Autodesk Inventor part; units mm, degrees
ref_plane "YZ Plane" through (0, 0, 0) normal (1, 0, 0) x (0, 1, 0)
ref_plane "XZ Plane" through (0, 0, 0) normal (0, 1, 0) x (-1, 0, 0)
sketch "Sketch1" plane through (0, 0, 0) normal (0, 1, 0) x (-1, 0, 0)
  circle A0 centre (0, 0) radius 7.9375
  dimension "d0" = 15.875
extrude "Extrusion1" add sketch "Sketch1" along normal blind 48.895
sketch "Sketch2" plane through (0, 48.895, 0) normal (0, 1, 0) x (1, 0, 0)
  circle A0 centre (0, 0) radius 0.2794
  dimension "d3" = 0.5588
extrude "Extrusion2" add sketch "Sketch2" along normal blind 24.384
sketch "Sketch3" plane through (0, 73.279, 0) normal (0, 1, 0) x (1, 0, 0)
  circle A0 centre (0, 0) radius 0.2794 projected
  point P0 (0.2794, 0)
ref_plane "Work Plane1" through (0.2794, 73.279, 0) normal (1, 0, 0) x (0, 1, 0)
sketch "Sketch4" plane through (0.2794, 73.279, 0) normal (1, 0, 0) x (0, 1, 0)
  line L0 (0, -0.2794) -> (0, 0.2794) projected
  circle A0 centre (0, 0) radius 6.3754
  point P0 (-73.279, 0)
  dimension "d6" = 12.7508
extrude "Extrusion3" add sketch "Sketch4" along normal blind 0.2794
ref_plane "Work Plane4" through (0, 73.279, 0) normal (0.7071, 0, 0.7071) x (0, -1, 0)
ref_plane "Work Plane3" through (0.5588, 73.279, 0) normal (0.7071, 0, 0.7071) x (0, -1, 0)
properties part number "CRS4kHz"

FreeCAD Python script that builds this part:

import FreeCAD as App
import Part
import Sketcher

V = App.Vector
Q = App.Units.Quantity

doc = App.newDocument("Part")
body = doc.addObject("PartDesign::Body", "Body")
body.AllowCompound = True

sketch1 = body.newObject("Sketcher::SketchObject", "Sketch")
sketch1.AttachmentSupport = (doc.getObject("XZ_Plane"), [""])
sketch1.MapMode = "FlatFace"
sketch1.addGeometry(Part.Circle(V(0, 0, 0), V(0, 0, 1), 7.9375), False)
sketch1.addConstraint([
    Sketcher.Constraint("Coincident", 0, 3, -1, 1),
    Sketcher.Constraint("Diameter", 0, Q("0.625 in")),
])
pad1 = body.newObject("PartDesign::Pad", "Pad")
pad1.Profile = sketch1
pad1.Length = Q("1.925 in")
pad1.Reversed = True

sketch2 = body.newObject("Sketcher::SketchObject", "Sketch001")
sketch2.AttachmentSupport = (doc.getObject("XZ_Plane"), [""])
sketch2.MapMode = "FlatFace"
sketch2.AttachmentOffset = App.Placement(V(0, 0, -1.925 * 25.4), App.Rotation())
sketch2.addGeometry(Part.Circle(V(0, 0, 0), V(0, 0, 1), 0.2794), False)
sketch2.addConstraint([
    Sketcher.Constraint("Coincident", 0, 3, -1, 1),
    Sketcher.Constraint("Diameter", 0, Q("0.022 in")),
])
pad2 = body.newObject("PartDesign::Pad", "Pad001")
pad2.Profile = sketch2
pad2.Length = Q("0.96 in")
pad2.Reversed = True

sketch3 = body.newObject("Sketcher::SketchObject", "Sketch002")
sketch3.AttachmentSupport = (doc.getObject("YZ_Plane"), [""])
sketch3.MapMode = "FlatFace"
sketch3.AttachmentOffset = App.Placement(V(0, 0, 0.011 * 25.4), App.Rotation())
sketch3.addGeometry(Part.Circle(V(73.279, 0, 0), V(0, 0, 1), 6.3754), False)
sketch3.addConstraint([
    Sketcher.Constraint("PointOnObject", 0, 3, -1),
    Sketcher.Constraint("Diameter", 0, Q("0.502 in")),
    Sketcher.Constraint("DistanceX", -1, 1, 0, 3, Q("2.885 in")),
])
pad3 = body.newObject("PartDesign::Pad", "Pad002")
pad3.Profile = sketch3
pad3.Length = Q("0.011 in")

doc.recompute()
